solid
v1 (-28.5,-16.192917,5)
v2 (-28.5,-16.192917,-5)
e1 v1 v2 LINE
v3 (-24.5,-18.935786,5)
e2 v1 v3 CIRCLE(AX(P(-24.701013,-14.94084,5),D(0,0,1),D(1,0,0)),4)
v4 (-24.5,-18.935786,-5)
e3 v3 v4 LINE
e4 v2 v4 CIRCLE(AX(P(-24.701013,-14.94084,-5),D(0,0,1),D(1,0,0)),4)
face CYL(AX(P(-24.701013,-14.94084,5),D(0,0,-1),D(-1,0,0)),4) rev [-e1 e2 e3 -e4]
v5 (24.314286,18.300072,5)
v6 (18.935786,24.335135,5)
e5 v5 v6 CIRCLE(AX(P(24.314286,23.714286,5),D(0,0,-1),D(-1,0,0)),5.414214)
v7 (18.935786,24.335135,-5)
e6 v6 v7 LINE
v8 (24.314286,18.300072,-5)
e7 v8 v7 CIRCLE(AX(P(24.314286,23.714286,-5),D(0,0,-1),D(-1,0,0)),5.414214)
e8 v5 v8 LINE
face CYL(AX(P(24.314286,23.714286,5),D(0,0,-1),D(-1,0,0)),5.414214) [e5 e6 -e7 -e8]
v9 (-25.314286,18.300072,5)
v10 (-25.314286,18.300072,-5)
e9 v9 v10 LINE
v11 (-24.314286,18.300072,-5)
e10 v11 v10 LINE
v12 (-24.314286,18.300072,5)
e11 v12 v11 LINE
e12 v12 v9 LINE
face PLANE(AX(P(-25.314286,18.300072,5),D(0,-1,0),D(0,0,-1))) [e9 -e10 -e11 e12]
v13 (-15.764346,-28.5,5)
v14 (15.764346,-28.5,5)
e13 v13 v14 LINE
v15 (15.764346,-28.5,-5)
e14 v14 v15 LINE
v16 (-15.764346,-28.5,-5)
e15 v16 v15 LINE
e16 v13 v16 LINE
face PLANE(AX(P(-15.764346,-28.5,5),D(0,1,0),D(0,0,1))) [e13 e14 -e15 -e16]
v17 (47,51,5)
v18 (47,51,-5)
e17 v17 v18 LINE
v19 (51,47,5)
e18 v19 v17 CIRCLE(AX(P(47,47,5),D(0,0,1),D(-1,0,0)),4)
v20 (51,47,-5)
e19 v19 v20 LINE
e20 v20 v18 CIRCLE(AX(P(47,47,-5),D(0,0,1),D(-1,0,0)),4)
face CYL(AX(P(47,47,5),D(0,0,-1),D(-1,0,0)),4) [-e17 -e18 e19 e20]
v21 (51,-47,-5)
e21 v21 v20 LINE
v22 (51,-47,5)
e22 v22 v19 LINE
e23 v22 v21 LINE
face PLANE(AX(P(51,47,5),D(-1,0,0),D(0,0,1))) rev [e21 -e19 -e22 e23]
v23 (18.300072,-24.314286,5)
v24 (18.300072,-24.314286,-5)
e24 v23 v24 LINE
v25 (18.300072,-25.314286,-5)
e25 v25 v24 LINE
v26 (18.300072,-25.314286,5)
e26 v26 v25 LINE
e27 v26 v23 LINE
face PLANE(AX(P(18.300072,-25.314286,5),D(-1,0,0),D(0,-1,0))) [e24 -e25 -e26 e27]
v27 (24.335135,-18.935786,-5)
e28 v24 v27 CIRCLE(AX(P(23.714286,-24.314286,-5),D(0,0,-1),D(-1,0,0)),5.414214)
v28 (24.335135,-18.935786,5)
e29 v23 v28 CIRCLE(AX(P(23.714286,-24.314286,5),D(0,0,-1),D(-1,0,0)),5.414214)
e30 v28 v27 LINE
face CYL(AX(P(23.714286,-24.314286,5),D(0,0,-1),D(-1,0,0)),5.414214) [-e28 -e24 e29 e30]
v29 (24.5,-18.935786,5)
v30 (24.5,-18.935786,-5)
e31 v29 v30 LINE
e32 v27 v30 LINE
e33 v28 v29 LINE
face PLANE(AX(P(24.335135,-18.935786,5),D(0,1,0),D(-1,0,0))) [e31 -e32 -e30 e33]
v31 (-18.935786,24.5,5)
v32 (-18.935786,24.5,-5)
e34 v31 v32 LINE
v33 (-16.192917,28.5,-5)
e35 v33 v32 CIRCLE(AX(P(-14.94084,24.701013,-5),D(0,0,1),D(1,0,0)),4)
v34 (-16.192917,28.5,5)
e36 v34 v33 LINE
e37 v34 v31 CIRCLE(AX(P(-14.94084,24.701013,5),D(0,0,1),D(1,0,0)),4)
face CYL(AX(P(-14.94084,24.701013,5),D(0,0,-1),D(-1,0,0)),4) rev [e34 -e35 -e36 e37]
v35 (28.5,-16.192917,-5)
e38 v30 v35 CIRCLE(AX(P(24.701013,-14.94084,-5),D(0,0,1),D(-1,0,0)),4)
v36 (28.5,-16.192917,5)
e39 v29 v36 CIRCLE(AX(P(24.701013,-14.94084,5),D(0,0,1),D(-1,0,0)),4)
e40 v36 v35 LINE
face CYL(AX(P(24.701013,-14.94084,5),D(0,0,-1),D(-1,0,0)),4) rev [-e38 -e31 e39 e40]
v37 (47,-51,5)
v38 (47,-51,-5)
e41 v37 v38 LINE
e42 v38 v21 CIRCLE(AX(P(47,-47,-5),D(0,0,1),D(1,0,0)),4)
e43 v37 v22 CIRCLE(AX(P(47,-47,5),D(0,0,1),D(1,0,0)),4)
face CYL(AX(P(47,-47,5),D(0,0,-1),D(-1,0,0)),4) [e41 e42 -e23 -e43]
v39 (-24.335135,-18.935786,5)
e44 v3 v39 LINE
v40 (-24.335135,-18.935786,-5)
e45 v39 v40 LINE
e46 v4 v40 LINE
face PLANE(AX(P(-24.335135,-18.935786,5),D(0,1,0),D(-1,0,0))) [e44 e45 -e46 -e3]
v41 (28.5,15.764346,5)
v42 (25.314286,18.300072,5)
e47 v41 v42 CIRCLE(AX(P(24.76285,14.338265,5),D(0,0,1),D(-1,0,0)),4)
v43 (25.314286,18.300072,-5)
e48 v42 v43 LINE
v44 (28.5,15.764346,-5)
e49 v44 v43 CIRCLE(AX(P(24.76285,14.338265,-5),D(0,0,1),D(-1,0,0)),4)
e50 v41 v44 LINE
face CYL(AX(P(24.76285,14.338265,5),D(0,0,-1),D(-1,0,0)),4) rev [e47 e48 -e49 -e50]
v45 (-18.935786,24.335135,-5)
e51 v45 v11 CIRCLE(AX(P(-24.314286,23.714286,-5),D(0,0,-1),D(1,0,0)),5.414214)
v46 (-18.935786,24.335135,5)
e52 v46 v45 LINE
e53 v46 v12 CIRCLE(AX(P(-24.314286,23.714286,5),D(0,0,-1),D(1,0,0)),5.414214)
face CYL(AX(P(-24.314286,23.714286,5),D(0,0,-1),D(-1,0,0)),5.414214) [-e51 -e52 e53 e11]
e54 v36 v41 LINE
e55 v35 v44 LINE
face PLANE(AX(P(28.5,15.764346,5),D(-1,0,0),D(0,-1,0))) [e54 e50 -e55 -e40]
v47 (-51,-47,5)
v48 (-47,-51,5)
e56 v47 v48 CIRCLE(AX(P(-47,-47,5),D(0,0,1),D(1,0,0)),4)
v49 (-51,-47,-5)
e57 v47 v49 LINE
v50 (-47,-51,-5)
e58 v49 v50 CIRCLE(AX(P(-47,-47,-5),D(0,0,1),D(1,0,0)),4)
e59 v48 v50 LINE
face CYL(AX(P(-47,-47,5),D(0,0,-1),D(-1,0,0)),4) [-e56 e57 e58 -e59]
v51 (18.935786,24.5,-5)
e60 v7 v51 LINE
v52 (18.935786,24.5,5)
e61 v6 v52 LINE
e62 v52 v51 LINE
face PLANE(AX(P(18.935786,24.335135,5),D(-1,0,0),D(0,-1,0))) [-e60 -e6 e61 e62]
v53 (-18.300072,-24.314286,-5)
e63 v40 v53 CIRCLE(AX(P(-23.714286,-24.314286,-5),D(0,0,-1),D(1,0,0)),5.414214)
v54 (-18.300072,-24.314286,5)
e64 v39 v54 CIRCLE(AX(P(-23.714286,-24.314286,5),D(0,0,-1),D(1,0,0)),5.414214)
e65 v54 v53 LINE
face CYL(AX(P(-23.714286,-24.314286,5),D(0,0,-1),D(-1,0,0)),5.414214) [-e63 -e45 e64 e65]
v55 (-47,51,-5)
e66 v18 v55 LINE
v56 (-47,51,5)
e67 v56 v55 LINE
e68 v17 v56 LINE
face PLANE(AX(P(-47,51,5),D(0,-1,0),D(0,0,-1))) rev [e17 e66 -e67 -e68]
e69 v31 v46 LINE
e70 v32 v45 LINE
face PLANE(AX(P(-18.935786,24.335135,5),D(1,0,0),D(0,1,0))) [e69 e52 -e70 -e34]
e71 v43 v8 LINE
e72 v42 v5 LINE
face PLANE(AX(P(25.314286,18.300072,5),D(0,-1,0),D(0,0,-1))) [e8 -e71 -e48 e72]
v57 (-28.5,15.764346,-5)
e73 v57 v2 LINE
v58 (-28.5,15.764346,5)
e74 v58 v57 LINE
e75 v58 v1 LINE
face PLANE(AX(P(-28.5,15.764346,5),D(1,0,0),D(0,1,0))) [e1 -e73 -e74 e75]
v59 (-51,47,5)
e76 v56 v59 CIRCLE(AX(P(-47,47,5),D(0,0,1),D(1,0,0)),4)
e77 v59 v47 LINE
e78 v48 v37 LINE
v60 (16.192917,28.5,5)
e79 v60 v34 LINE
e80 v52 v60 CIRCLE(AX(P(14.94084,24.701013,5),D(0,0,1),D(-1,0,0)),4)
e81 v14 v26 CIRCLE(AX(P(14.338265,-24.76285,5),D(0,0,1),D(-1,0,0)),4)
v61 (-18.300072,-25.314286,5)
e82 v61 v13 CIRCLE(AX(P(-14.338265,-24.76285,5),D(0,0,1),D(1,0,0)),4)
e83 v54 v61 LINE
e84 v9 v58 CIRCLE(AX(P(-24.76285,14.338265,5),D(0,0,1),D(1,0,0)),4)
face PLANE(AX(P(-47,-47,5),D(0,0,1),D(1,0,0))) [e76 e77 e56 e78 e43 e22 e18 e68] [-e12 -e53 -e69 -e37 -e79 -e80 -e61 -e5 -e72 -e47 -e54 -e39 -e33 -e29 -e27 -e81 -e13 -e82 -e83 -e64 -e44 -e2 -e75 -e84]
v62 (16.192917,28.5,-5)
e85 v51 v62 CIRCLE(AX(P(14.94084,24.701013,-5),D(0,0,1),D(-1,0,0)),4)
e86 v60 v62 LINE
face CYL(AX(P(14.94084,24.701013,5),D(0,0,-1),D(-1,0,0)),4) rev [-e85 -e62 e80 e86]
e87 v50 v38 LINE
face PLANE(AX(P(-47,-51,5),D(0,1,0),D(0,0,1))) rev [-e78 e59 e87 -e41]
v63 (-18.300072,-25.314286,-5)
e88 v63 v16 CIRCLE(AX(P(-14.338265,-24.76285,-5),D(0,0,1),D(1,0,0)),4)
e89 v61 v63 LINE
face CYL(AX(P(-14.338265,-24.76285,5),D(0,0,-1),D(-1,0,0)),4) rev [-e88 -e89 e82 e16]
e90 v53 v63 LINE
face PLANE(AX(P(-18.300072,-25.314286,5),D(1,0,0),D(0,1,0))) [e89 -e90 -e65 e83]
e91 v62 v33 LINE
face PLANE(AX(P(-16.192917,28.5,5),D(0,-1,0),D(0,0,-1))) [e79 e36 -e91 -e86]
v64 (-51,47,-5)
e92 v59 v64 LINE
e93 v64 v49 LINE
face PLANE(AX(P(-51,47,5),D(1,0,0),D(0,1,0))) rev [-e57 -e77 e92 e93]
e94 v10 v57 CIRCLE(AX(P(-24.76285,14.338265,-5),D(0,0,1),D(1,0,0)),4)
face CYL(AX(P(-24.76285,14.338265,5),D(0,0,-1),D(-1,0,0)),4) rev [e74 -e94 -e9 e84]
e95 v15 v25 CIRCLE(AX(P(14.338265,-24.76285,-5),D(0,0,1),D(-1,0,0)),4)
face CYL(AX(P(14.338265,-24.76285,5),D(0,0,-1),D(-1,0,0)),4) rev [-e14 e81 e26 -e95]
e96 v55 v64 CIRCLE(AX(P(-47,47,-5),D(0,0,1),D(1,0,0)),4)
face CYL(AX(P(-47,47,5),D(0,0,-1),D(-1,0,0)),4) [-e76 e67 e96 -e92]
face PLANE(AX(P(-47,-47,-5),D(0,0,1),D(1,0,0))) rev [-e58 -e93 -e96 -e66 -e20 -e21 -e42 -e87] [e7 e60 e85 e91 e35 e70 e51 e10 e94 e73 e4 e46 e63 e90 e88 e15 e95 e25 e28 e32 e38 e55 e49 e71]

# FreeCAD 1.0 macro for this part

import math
import FreeCAD as App
import Part
import Sketcher
Q = App.Units.Quantity

doc = App.newDocument("Part")
body = doc.addObject("PartDesign::Body", "Body")

sketch1 = body.newObject("Sketcher::SketchObject", "Sketch")
sketch1.AttachmentSupport = (doc.getObject("XY_Plane"), [""])
sketch1.MapMode = "FlatFace"
sketch1.addGeometry(Part.LineSegment(App.Vector(47, 51, 0), App.Vector(-47, 51, 0)), False)
sketch1.addGeometry(Part.ArcOfCircle(Part.Circle(App.Vector(-47, 47, 0), App.Vector(0, 0, 1), 4), math.radians(90), math.radians(180)), False)
sketch1.addGeometry(Part.LineSegment(App.Vector(-51, 47, 0), App.Vector(-51, -47, 0)), False)
sketch1.addGeometry(Part.ArcOfCircle(Part.Circle(App.Vector(-47, -47, 0), App.Vector(0, 0, 1), 4), math.radians(180), math.radians(270)), False)
sketch1.addGeometry(Part.LineSegment(App.Vector(-47, -51, 0), App.Vector(47, -51, 0)), False)
sketch1.addGeometry(Part.ArcOfCircle(Part.Circle(App.Vector(47, -47, 0), App.Vector(0, 0, 1), 4), math.radians(-90), math.radians(0)), False)
sketch1.addGeometry(Part.LineSegment(App.Vector(51, -47, 0), App.Vector(51, 47, 0)), False)
sketch1.addGeometry(Part.ArcOfCircle(Part.Circle(App.Vector(47, 47, 0), App.Vector(0, 0, 1), 4), math.radians(0), math.radians(90)), False)
sketch1.addGeometry(Part.LineSegment(App.Vector(-18.94, 24.34, 0), App.Vector(-18.94, 24.5, 0)), False)
sketch1.addGeometry(Part.ArcOfCircle(Part.Circle(App.Vector(-14.94, 24.7, 0), App.Vector(0, 0, 1), 4), math.radians(108), math.radians(183)), False)
sketch1.addGeometry(Part.LineSegment(App.Vector(-16.19, 28.5, 0), App.Vector(16.19, 28.5, 0)), False)
sketch1.addGeometry(Part.ArcOfCircle(Part.Circle(App.Vector(14.94, 24.7, 0), App.Vector(0, 0, 1), 4), math.radians(-3), math.radians(72)), False)
sketch1.addGeometry(Part.LineSegment(App.Vector(18.94, 24.5, 0), App.Vector(18.94, 24.34, 0)), False)
sketch1.addGeometry(Part.ArcOfCircle(Part.Circle(App.Vector(24.31, 23.71, 0), App.Vector(0, 0, 1), 5.41), math.radians(173), math.radians(270)), False)
sketch1.addGeometry(Part.LineSegment(App.Vector(24.31, 18.3, 0), App.Vector(25.31, 18.3, 0)), False)
sketch1.addGeometry(Part.ArcOfCircle(Part.Circle(App.Vector(24.76, 14.34, 0), App.Vector(0, 0, 1), 4), math.radians(21), math.radians(82)), False)
sketch1.addGeometry(Part.LineSegment(App.Vector(28.5, 15.76, 0), App.Vector(28.5, -16.19, 0)), False)
sketch1.addGeometry(Part.ArcOfCircle(Part.Circle(App.Vector(24.7, -14.94, 0), App.Vector(0, 0, 1), 4), math.radians(-93), math.radians(-18)), False)
sketch1.addGeometry(Part.LineSegment(App.Vector(24.5, -18.94, 0), App.Vector(24.34, -18.94, 0)), False)
sketch1.addGeometry(Part.ArcOfCircle(Part.Circle(App.Vector(23.71, -24.31, 0), App.Vector(0, 0, 1), 5.41), math.radians(83), math.radians(180)), False)
sketch1.addGeometry(Part.LineSegment(App.Vector(18.3, -24.31, 0), App.Vector(18.3, -25.31, 0)), False)
sketch1.addGeometry(Part.ArcOfCircle(Part.Circle(App.Vector(14.34, -24.76, 0), App.Vector(0, 0, 1), 4), math.radians(-69), math.radians(-8)), False)
sketch1.addGeometry(Part.LineSegment(App.Vector(15.76, -28.5, 0), App.Vector(-15.76, -28.5, 0)), False)
sketch1.addGeometry(Part.ArcOfCircle(Part.Circle(App.Vector(-14.34, -24.76, 0), App.Vector(0, 0, 1), 4), math.radians(-172), math.radians(-111)), False)
sketch1.addGeometry(Part.LineSegment(App.Vector(-18.3, -25.31, 0), App.Vector(-18.3, -24.31, 0)), False)
sketch1.addGeometry(Part.ArcOfCircle(Part.Circle(App.Vector(-23.71, -24.31, 0), App.Vector(0, 0, 1), 5.41), math.radians(0), math.radians(97)), False)
sketch1.addGeometry(Part.LineSegment(App.Vector(-24.34, -18.94, 0), App.Vector(-24.5, -18.94, 0)), False)
sketch1.addGeometry(Part.ArcOfCircle(Part.Circle(App.Vector(-24.7, -14.94, 0), App.Vector(0, 0, 1), 4), math.radians(-162), math.radians(-87)), False)
sketch1.addGeometry(Part.LineSegment(App.Vector(-28.5, -16.19, 0), App.Vector(-28.5, 15.76, 0)), False)
sketch1.addGeometry(Part.ArcOfCircle(Part.Circle(App.Vector(-24.76, 14.34, 0), App.Vector(0, 0, 1), 4), math.radians(98), math.radians(159)), False)
sketch1.addGeometry(Part.LineSegment(App.Vector(-25.31, 18.3, 0), App.Vector(-24.31, 18.3, 0)), False)
sketch1.addGeometry(Part.ArcOfCircle(Part.Circle(App.Vector(-24.31, 23.71, 0), App.Vector(0, 0, 1), 5.41), math.radians(-90), math.radians(7)), False)
sketch1.addConstraint(Sketcher.Constraint("Tangent", 0, 2, 1, 1))
sketch1.addConstraint(Sketcher.Constraint("Tangent", 1, 2, 2, 1))
sketch1.addConstraint(Sketcher.Constraint("Tangent", 2, 2, 3, 1))
sketch1.addConstraint(Sketcher.Constraint("Tangent", 3, 2, 4, 1))
sketch1.addConstraint(Sketcher.Constraint("Tangent", 4, 2, 5, 1))
sketch1.addConstraint(Sketcher.Constraint("Tangent", 5, 2, 6, 1))
sketch1.addConstraint(Sketcher.Constraint("Tangent", 6, 2, 7, 1))
sketch1.addConstraint(Sketcher.Constraint("Tangent", 7, 2, 0, 1))
sketch1.addConstraint(Sketcher.Constraint("Coincident", 8, 2, 9, 2))
sketch1.addConstraint(Sketcher.Constraint("Coincident", 9, 1, 10, 1))
sketch1.addConstraint(Sketcher.Constraint("Coincident", 10, 2, 11, 2))
sketch1.addConstraint(Sketcher.Constraint("Coincident", 11, 1, 12, 1))
sketch1.addConstraint(Sketcher.Constraint("Coincident", 12, 2, 13, 1))
sketch1.addConstraint(Sketcher.Constraint("Tangent", 13, 2, 14, 1))
sketch1.addConstraint(Sketcher.Constraint("Coincident", 14, 2, 15, 2))
sketch1.addConstraint(Sketcher.Constraint("Coincident", 15, 1, 16, 1))
sketch1.addConstraint(Sketcher.Constraint("Coincident", 16, 2, 17, 2))
sketch1.addConstraint(Sketcher.Constraint("Coincident", 17, 1, 18, 1))
sketch1.addConstraint(Sketcher.Constraint("Coincident", 18, 2, 19, 1))
sketch1.addConstraint(Sketcher.Constraint("Tangent", 19, 2, 20, 1))
sketch1.addConstraint(Sketcher.Constraint("Coincident", 20, 2, 21, 2))
sketch1.addConstraint(Sketcher.Constraint("Coincident", 21, 1, 22, 1))
sketch1.addConstraint(Sketcher.Constraint("Coincident", 22, 2, 23, 2))
sketch1.addConstraint(Sketcher.Constraint("Coincident", 23, 1, 24, 1))
sketch1.addConstraint(Sketcher.Constraint("Tangent", 24, 2, 25, 1))
sketch1.addConstraint(Sketcher.Constraint("Coincident", 25, 2, 26, 1))
sketch1.addConstraint(Sketcher.Constraint("Coincident", 26, 2, 27, 2))
sketch1.addConstraint(Sketcher.Constraint("Coincident", 27, 1, 28, 1))
sketch1.addConstraint(Sketcher.Constraint("Coincident", 28, 2, 29, 2))
sketch1.addConstraint(Sketcher.Constraint("Coincident", 29, 1, 30, 1))
sketch1.addConstraint(Sketcher.Constraint("Tangent", 30, 2, 31, 1))
sketch1.addConstraint(Sketcher.Constraint("Coincident", 31, 2, 8, 1))
sketch1.addConstraint(Sketcher.Constraint("Horizontal", 0))
sketch1.addConstraint(Sketcher.Constraint("Vertical", 2))
sketch1.addConstraint(Sketcher.Constraint("Horizontal", 4))
sketch1.addConstraint(Sketcher.Constraint("Vertical", 6))
sketch1.addConstraint(Sketcher.Constraint("Vertical", 8))
sketch1.addConstraint(Sketcher.Constraint("Horizontal", 10))
sketch1.addConstraint(Sketcher.Constraint("Vertical", 12))
sketch1.addConstraint(Sketcher.Constraint("Horizontal", 14))
sketch1.addConstraint(Sketcher.Constraint("Vertical", 16))
sketch1.addConstraint(Sketcher.Constraint("Horizontal", 18))
sketch1.addConstraint(Sketcher.Constraint("Vertical", 20))
sketch1.addConstraint(Sketcher.Constraint("Horizontal", 22))
sketch1.addConstraint(Sketcher.Constraint("Vertical", 24))
sketch1.addConstraint(Sketcher.Constraint("Horizontal", 26))
sketch1.addConstraint(Sketcher.Constraint("Vertical", 28))
sketch1.addConstraint(Sketcher.Constraint("Horizontal", 30))
sketch1.addConstraint(Sketcher.Constraint("Equal", 1, 3))
sketch1.addConstraint(Sketcher.Constraint("Equal", 3, 5))
sketch1.addConstraint(Sketcher.Constraint("Equal", 5, 7))
sketch1.addConstraint(Sketcher.Constraint("Equal", 7, 9))
sketch1.addConstraint(Sketcher.Constraint("Equal", 9, 11))
sketch1.addConstraint(Sketcher.Constraint("Equal", 11, 15))
sketch1.addConstraint(Sketcher.Constraint("Equal", 15, 17))
sketch1.addConstraint(Sketcher.Constraint("Equal", 13, 19))
sketch1.addConstraint(Sketcher.Constraint("Equal", 17, 21))
sketch1.addConstraint(Sketcher.Constraint("Equal", 21, 23))
sketch1.addConstraint(Sketcher.Constraint("Equal", 19, 25))
sketch1.addConstraint(Sketcher.Constraint("Equal", 23, 27))
sketch1.addConstraint(Sketcher.Constraint("Equal", 27, 29))
sketch1.addConstraint(Sketcher.Constraint("Equal", 25, 31))
sketch1.addConstraint(Sketcher.Constraint("Symmetric", 1, 3, 5, 3, -1, 1))
sketch1.addConstraint(Sketcher.Constraint("Symmetric", 9, 3, 11, 3, -2))
sketch1.addConstraint(Sketcher.Constraint("Symmetric", 21, 3, 23, 3, -2))
sketch1.addConstraint(Sketcher.Constraint("Symmetric", 19, 3, 25, 3, -2))
sketch1.addConstraint(Sketcher.Constraint("Symmetric", 17, 3, 27, 3, -2))
sketch1.addConstraint(Sketcher.Constraint("Symmetric", 15, 3, 29, 3, -2))
sketch1.addConstraint(Sketcher.Constraint("Symmetric", 13, 3, 31, 3, -2))
sketch1.addConstraint(Sketcher.Constraint("Horizontal", 8, 2, 11, 1))
sketch1.addConstraint(Sketcher.Constraint("Horizontal", 18, 2, 25, 2))
sketch1.addConstraint(Sketcher.Constraint("Horizontal", 16, 2, 27, 1))
sketch1.addConstraint(Sketcher.Constraint("Equal", 4, 2))
sketch1.addConstraint(Sketcher.Constraint("Equal", 26, 8))
sketch1.addConstraint(Sketcher.Constraint("Equal", 30, 20))
sketch1.addConstraint(Sketcher.Constraint("Radius", 1, Q("4 mm")))
sketch1.addConstraint(Sketcher.Constraint("DistanceX", 0, 2, 0, 1, Q("94 mm")))
sketch1.addConstraint(Sketcher.Constraint("DistanceX", 14, 1, 14, 2, Q("1 mm")))
sketch1.addConstraint(Sketcher.Constraint("DistanceY", 8, 2, 9, 1, Q("4 mm")))
sketch1.addConstraint(Sketcher.Constraint("DistanceX", 17, 1, 16, 2, Q("4 mm")))
sketch1.addConstraint(Sketcher.Constraint("DistanceY", -1, 1, 8, 2, Q("24.5 mm")))
sketch1.addConstraint(Sketcher.Constraint("DistanceX", -1, 1, 15, 1, Q("28.5 mm")))
sketch1.addConstraint(Sketcher.Constraint("DistanceY", 21, 1, -1, 1, Q("28.5 mm")))
sketch1.addConstraint(Sketcher.Constraint("DistanceX", 19, 3, 13, 3, Q("0.6 mm")))
sketch1.addConstraint(Sketcher.Constraint("Radius", 13, Q("5.414214 mm")))
sketch1.addConstraint(Sketcher.Constraint("DistanceX", 22, 2, 22, 1, Q("31.528692 mm")))
sketch1.addConstraint(Sketcher.Constraint("DistanceY", 19, 3, 11, 3, Q("49.015299 mm")))
sketch1.addConstraint(Sketcher.Constraint("DistanceX", 25, 3, 17, 3, Q("48.415299 mm")))
sketch1.addConstraint(Sketcher.Constraint("DistanceX", 31, 3, 8, 2, Q("5.378499 mm")))
sketch1.addConstraint(Sketcher.Constraint("DistanceY", 19, 3, 17, 1, Q("5.378499 mm")))
sketch1.addConstraint(Sketcher.Constraint("DistanceX", 10, 1, 10, 2, Q("32.385834 mm")))
sketch1.addConstraint(Sketcher.Constraint("DistanceX", 18, 2, 18, 1, Q("0.164865 mm")))
sketch1.addConstraint(Sketcher.Constraint("DistanceY", 16, 2, 16, 1, Q("31.957263 mm")))
pad1 = body.newObject("PartDesign::Pad", "Pad")
pad1.Profile = sketch1
pad1.Length = 10
pad1.Midplane = True

doc.recompute()
